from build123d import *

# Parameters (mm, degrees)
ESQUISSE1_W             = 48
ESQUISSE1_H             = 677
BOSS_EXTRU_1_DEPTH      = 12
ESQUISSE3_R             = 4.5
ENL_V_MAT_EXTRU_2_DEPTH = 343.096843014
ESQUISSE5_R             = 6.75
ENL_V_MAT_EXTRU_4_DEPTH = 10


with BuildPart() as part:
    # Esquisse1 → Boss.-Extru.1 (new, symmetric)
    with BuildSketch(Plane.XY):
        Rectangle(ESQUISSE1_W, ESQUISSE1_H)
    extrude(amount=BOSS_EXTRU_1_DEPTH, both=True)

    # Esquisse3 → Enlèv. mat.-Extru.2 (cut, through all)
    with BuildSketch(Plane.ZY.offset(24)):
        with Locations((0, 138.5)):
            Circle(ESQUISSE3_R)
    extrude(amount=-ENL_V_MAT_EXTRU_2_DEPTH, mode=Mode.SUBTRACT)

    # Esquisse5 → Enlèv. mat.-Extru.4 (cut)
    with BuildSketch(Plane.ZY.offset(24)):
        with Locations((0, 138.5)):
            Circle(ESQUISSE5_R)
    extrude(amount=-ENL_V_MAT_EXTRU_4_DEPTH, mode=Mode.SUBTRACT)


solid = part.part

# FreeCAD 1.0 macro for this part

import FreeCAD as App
import Part
import Sketcher
from FreeCAD import Vector
Q = App.Units.Quantity

doc = App.newDocument("Part")
body = doc.addObject("PartDesign::Body", "Body")

# Sketch on XY plane
sketch1 = body.newObject("Sketcher::SketchObject", "Sketch")
sketch1.AttachmentSupport = (doc.getObject("XY_Plane"), [""])
sketch1.MapMode = "FlatFace"
sketch1.addGeometry([
    Part.LineSegment(Vector(-24, 338, 0), Vector(-24, -338, 0)),
    Part.LineSegment(Vector(-24, -338, 0), Vector(24, -338, 0)),
    Part.LineSegment(Vector(24, -338, 0), Vector(24, 338, 0)),
    Part.LineSegment(Vector(24, 338, 0), Vector(-24, 338, 0)),
], False)
sketch1.addConstraint([
    Sketcher.Constraint("Coincident", 0, 2, 1, 1),
    Sketcher.Constraint("Coincident", 1, 2, 2, 1),
    Sketcher.Constraint("Coincident", 2, 2, 3, 1),
    Sketcher.Constraint("Coincident", 3, 2, 0, 1),
    Sketcher.Constraint("Vertical", 0),
    Sketcher.Constraint("Horizontal", 1),
    Sketcher.Constraint("Vertical", 2),
    Sketcher.Constraint("Horizontal", 3),
    Sketcher.Constraint("Symmetric", 0, 2, 2, 2, -1, 1),
    Sketcher.Constraint("DistanceX", 1, 1, 1, 2, Q("48 mm")),
    Sketcher.Constraint("DistanceY", 0, 2, 0, 1, Q("677 mm")),
])
pad1 = body.newObject("PartDesign::Pad", "Pad")
pad1.Profile = sketch1
pad1.Length = 24
pad1.Midplane = True

# Sketch on YZ plane
sketch2 = body.newObject("Sketcher::SketchObject", "Sketch001")
sketch2.AttachmentSupport = (doc.getObject("YZ_Plane"), [""])
sketch2.MapMode = "FlatFace"
sketch2.AttachmentOffset = App.Placement(Vector(0, 0, -24), App.Rotation())
sketch2.addGeometry(Part.Circle(Vector(138.5, 0, 0), Vector(0, 0, 1), 4.5), False)
sketch2.addConstraint([
    Sketcher.Constraint("PointOnObject", 0, 3, -1),
    Sketcher.Constraint("Diameter", 0, Q("9 mm")),
    Sketcher.Constraint("DistanceX", -1, 1, 0, 3, Q("138.5 mm")),
])
pocket1 = body.newObject("PartDesign::Pocket", "Pocket")
pocket1.Profile = sketch2
pocket1.Type = "ThroughAll"
pocket1.Reversed = True

# Sketch on YZ plane
sketch3 = body.newObject("Sketcher::SketchObject", "Sketch002")
sketch3.AttachmentSupport = (doc.getObject("YZ_Plane"), [""])
sketch3.MapMode = "FlatFace"
sketch3.AttachmentOffset = App.Placement(Vector(0, 0, -24), App.Rotation())
sketch3.addGeometry(Part.Circle(Vector(138, 0, 0), Vector(0, 0, 1), 7), False)
sketch3.addConstraint([
    Sketcher.Constraint("PointOnObject", 0, 3, -1),
    Sketcher.Constraint("Diameter", 0, Q("13.5 mm")),
    Sketcher.Constraint("DistanceX", -1, 1, 0, 3, Q("138.5 mm")),
])
pocket2 = body.newObject("PartDesign::Pocket", "Pocket001")
pocket2.Profile = sketch3
pocket2.Length = 10
pocket2.Reversed = True

doc.recompute()
